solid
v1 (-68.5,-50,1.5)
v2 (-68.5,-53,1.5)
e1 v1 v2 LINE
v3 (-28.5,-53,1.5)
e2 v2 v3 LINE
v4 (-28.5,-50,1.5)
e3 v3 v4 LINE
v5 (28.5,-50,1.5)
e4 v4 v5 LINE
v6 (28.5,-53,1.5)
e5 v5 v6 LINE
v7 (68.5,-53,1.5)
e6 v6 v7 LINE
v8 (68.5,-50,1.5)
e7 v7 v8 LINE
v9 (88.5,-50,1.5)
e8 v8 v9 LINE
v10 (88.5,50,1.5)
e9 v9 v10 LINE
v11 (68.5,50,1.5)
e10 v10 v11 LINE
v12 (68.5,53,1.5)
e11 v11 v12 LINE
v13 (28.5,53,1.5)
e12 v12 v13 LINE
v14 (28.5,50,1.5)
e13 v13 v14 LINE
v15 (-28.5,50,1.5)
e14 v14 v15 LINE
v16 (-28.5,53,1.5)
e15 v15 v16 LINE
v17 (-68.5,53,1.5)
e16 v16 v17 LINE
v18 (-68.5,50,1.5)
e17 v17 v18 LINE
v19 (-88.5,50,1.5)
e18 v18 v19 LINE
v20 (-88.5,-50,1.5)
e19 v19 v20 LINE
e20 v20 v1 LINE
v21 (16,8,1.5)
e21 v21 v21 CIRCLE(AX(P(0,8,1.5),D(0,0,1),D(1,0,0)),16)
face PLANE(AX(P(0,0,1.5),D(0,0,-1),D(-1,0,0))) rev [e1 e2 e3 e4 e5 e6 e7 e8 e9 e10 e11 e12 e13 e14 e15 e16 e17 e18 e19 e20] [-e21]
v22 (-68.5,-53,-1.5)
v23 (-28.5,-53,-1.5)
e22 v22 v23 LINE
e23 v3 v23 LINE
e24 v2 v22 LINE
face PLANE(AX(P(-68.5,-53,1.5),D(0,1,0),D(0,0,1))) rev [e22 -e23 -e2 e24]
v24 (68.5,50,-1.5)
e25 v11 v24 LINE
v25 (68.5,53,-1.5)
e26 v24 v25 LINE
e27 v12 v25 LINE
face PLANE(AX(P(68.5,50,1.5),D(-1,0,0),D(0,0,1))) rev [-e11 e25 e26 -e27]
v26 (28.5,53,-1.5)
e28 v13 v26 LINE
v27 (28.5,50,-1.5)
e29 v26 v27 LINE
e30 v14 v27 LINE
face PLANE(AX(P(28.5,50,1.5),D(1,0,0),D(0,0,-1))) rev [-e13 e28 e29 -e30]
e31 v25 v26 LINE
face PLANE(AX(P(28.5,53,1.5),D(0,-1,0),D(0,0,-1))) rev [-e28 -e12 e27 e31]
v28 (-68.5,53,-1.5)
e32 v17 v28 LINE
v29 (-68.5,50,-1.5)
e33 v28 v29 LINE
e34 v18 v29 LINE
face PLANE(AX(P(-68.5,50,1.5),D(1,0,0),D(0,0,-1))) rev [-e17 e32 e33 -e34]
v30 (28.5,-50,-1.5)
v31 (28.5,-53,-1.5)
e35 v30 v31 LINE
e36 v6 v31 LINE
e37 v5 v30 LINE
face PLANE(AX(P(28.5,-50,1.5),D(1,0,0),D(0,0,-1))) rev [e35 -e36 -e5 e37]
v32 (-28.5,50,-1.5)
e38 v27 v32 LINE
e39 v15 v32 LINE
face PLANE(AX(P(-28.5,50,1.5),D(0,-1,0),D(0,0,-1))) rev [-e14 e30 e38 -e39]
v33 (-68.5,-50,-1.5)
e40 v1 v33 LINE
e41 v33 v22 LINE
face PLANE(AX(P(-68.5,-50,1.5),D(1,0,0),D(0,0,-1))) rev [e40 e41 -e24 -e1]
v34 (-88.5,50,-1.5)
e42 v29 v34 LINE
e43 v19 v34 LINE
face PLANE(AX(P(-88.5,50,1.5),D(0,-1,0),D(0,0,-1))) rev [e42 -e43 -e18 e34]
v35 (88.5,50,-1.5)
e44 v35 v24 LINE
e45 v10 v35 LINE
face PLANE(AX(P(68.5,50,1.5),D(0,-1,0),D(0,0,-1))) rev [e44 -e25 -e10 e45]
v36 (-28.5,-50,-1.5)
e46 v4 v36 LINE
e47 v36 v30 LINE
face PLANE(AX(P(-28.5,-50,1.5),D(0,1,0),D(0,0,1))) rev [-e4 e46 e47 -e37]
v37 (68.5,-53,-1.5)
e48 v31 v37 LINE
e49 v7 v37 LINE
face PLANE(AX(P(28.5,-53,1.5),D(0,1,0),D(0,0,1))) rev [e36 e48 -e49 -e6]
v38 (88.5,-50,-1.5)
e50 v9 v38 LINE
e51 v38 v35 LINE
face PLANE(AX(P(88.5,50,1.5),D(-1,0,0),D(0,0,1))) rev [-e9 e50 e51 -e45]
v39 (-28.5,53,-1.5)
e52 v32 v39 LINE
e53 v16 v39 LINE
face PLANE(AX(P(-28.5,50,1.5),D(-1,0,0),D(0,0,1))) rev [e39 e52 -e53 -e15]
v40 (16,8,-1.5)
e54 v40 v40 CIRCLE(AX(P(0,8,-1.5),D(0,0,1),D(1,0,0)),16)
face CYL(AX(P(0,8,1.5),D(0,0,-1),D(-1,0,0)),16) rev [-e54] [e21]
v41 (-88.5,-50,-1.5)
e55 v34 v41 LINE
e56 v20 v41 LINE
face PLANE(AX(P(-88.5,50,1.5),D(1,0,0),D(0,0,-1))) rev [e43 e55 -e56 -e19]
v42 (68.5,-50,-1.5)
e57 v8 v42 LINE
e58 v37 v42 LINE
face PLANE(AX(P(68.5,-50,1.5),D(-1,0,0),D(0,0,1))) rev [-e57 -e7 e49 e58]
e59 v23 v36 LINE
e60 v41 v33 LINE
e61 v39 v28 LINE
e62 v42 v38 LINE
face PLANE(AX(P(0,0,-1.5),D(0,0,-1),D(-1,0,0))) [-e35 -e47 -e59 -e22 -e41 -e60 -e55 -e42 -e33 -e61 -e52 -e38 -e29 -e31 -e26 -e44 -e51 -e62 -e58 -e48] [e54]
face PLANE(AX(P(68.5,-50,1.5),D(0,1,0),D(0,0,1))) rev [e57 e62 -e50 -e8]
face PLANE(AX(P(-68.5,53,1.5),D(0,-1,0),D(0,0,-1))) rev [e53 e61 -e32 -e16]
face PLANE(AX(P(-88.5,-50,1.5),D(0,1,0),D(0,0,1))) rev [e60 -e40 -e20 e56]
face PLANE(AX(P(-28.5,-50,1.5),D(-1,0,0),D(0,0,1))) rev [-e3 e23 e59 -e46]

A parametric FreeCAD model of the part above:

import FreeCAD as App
import Part
import Sketcher
from FreeCAD import Vector
Q = App.Units.Quantity

doc = App.newDocument("Part")
body = doc.addObject("PartDesign::Body", "Body")

sketch1 = body.newObject("Sketcher::SketchObject", "Sketch")
sketch1.AttachmentSupport = (doc.getObject("XY_Plane"), [""])
sketch1.MapMode = "FlatFace"
sketch1.addGeometry(Part.LineSegment(Vector(28.5, 50, 0), Vector(-28.5, 50, 0)), False)
sketch1.addGeometry(Part.LineSegment(Vector(-28.5, 50, 0), Vector(-28.5, 53, 0)), False)
sketch1.addGeometry(Part.LineSegment(Vector(-28.5, 53, 0), Vector(-68.5, 53, 0)), False)
sketch1.addGeometry(Part.LineSegment(Vector(-68.5, 53, 0), Vector(-68.5, 50, 0)), False)
sketch1.addGeometry(Part.LineSegment(Vector(-68.5, 50, 0), Vector(-88.5, 50, 0)), False)
sketch1.addGeometry(Part.LineSegment(Vector(-88.5, 50, 0), Vector(-88.5, -50, 0)), False)
sketch1.addGeometry(Part.LineSegment(Vector(-88.5, -50, 0), Vector(-68.5, -50, 0)), False)
sketch1.addGeometry(Part.LineSegment(Vector(-68.5, -50, 0), Vector(-68.5, -53, 0)), False)
sketch1.addGeometry(Part.LineSegment(Vector(-68.5, -53, 0), Vector(-28.5, -53, 0)), False)
sketch1.addGeometry(Part.LineSegment(Vector(-28.5, -53, 0), Vector(-28.5, -50, 0)), False)
sketch1.addGeometry(Part.LineSegment(Vector(-28.5, -50, 0), Vector(28.5, -50, 0)), False)
sketch1.addGeometry(Part.LineSegment(Vector(28.5, -50, 0), Vector(28.5, -53, 0)), False)
sketch1.addGeometry(Part.LineSegment(Vector(28.5, -53, 0), Vector(68.5, -53, 0)), False)
sketch1.addGeometry(Part.LineSegment(Vector(68.5, -53, 0), Vector(68.5, -50, 0)), False)
sketch1.addGeometry(Part.LineSegment(Vector(68.5, -50, 0), Vector(88.5, -50, 0)), False)
sketch1.addGeometry(Part.LineSegment(Vector(88.5, -50, 0), Vector(88.5, 50, 0)), False)
sketch1.addGeometry(Part.LineSegment(Vector(88.5, 50, 0), Vector(68.5, 50, 0)), False)
sketch1.addGeometry(Part.LineSegment(Vector(68.5, 50, 0), Vector(68.5, 53, 0)), False)
sketch1.addGeometry(Part.LineSegment(Vector(68.5, 53, 0), Vector(28.5, 53, 0)), False)
sketch1.addGeometry(Part.LineSegment(Vector(28.5, 53, 0), Vector(28.5, 50, 0)), False)
sketch1.addGeometry(Part.Circle(Vector(0, 8, 0), Vector(0, 0, 1), 16), False)
sketch1.addConstraint(Sketcher.Constraint("Coincident", 0, 2, 1, 1))
sketch1.addConstraint(Sketcher.Constraint("Coincident", 1, 2, 2, 1))
sketch1.addConstraint(Sketcher.Constraint("Coincident", 2, 2, 3, 1))
sketch1.addConstraint(Sketcher.Constraint("Coincident", 3, 2, 4, 1))
sketch1.addConstraint(Sketcher.Constraint("Coincident", 4, 2, 5, 1))
sketch1.addConstraint(Sketcher.Constraint("Coincident", 5, 2, 6, 1))
sketch1.addConstraint(Sketcher.Constraint("Coincident", 6, 2, 7, 1))
sketch1.addConstraint(Sketcher.Constraint("Coincident", 7, 2, 8, 1))
sketch1.addConstraint(Sketcher.Constraint("Coincident", 8, 2, 9, 1))
sketch1.addConstraint(Sketcher.Constraint("Coincident", 9, 2, 10, 1))
sketch1.addConstraint(Sketcher.Constraint("Coincident", 10, 2, 11, 1))
sketch1.addConstraint(Sketcher.Constraint("Coincident", 11, 2, 12, 1))
sketch1.addConstraint(Sketcher.Constraint("Coincident", 12, 2, 13, 1))
sketch1.addConstraint(Sketcher.Constraint("Coincident", 13, 2, 14, 1))
sketch1.addConstraint(Sketcher.Constraint("Coincident", 14, 2, 15, 1))
sketch1.addConstraint(Sketcher.Constraint("Coincident", 15, 2, 16, 1))
sketch1.addConstraint(Sketcher.Constraint("Coincident", 16, 2, 17, 1))
sketch1.addConstraint(Sketcher.Constraint("Coincident", 17, 2, 18, 1))
sketch1.addConstraint(Sketcher.Constraint("Coincident", 18, 2, 19, 1))
sketch1.addConstraint(Sketcher.Constraint("Coincident", 19, 2, 0, 1))
sketch1.addConstraint(Sketcher.Constraint("Horizontal", 0))
sketch1.addConstraint(Sketcher.Constraint("Vertical", 1))
sketch1.addConstraint(Sketcher.Constraint("Horizontal", 2))
sketch1.addConstraint(Sketcher.Constraint("Vertical", 3))
sketch1.addConstraint(Sketcher.Constraint("Horizontal", 4))
sketch1.addConstraint(Sketcher.Constraint("Vertical", 5))
sketch1.addConstraint(Sketcher.Constraint("Horizontal", 6))
sketch1.addConstraint(Sketcher.Constraint("Vertical", 7))
sketch1.addConstraint(Sketcher.Constraint("Horizontal", 8))
sketch1.addConstraint(Sketcher.Constraint("Vertical", 9))
sketch1.addConstraint(Sketcher.Constraint("Horizontal", 10))
sketch1.addConstraint(Sketcher.Constraint("Vertical", 11))
sketch1.addConstraint(Sketcher.Constraint("Horizontal", 12))
sketch1.addConstraint(Sketcher.Constraint("Vertical", 13))
sketch1.addConstraint(Sketcher.Constraint("Horizontal", 14))
sketch1.addConstraint(Sketcher.Constraint("Vertical", 15))
sketch1.addConstraint(Sketcher.Constraint("Horizontal", 16))
sketch1.addConstraint(Sketcher.Constraint("Vertical", 17))
sketch1.addConstraint(Sketcher.Constraint("Horizontal", 18))
sketch1.addConstraint(Sketcher.Constraint("Vertical", 19))
sketch1.addConstraint(Sketcher.Constraint("Symmetric", 0, 2, 10, 2, -1, 1))
sketch1.addConstraint(Sketcher.Constraint("Symmetric", 2, 2, 12, 2, -1, 1))
sketch1.addConstraint(Sketcher.Constraint("Symmetric", 4, 2, 14, 2, -1, 1))
sketch1.addConstraint(Sketcher.Constraint("Symmetric", 6, 2, 16, 2, -1, 1))
sketch1.addConstraint(Sketcher.Constraint("Symmetric", 8, 2, 18, 2, -1, 1))
sketch1.addConstraint(Sketcher.Constraint("Symmetric", 8, 2, 11, 2, -2))
sketch1.addConstraint(Sketcher.Constraint("Symmetric", 6, 2, 13, 2, -2))
sketch1.addConstraint(Sketcher.Constraint("PointOnObject", 20, 3, -2))
sketch1.addConstraint(Sketcher.Constraint("Horizontal", 0, 2, 3, 2))
sketch1.addConstraint(Sketcher.Constraint("Diameter", 20, Q("32 mm")))
sketch1.addConstraint(Sketcher.Constraint("DistanceX", 0, 2, 0, 1, Q("57 mm")))
sketch1.addConstraint(Sketcher.Constraint("DistanceX", 2, 2, 2, 1, Q("40 mm")))
sketch1.addConstraint(Sketcher.Constraint("DistanceX", 4, 2, 4, 1, Q("20 mm")))
sketch1.addConstraint(Sketcher.Constraint("DistanceY", 1, 1, 1, 2, Q("3 mm")))
sketch1.addConstraint(Sketcher.Constraint("DistanceY", 5, 2, 5, 1, Q("100 mm")))
sketch1.addConstraint(Sketcher.Constraint("DistanceY", -1, 1, 20, 3, Q("8 mm")))
pad1 = body.newObject("PartDesign::Pad", "Pad")
pad1.Profile = sketch1
pad1.Length = 3
pad1.Midplane = True

doc.recompute()
